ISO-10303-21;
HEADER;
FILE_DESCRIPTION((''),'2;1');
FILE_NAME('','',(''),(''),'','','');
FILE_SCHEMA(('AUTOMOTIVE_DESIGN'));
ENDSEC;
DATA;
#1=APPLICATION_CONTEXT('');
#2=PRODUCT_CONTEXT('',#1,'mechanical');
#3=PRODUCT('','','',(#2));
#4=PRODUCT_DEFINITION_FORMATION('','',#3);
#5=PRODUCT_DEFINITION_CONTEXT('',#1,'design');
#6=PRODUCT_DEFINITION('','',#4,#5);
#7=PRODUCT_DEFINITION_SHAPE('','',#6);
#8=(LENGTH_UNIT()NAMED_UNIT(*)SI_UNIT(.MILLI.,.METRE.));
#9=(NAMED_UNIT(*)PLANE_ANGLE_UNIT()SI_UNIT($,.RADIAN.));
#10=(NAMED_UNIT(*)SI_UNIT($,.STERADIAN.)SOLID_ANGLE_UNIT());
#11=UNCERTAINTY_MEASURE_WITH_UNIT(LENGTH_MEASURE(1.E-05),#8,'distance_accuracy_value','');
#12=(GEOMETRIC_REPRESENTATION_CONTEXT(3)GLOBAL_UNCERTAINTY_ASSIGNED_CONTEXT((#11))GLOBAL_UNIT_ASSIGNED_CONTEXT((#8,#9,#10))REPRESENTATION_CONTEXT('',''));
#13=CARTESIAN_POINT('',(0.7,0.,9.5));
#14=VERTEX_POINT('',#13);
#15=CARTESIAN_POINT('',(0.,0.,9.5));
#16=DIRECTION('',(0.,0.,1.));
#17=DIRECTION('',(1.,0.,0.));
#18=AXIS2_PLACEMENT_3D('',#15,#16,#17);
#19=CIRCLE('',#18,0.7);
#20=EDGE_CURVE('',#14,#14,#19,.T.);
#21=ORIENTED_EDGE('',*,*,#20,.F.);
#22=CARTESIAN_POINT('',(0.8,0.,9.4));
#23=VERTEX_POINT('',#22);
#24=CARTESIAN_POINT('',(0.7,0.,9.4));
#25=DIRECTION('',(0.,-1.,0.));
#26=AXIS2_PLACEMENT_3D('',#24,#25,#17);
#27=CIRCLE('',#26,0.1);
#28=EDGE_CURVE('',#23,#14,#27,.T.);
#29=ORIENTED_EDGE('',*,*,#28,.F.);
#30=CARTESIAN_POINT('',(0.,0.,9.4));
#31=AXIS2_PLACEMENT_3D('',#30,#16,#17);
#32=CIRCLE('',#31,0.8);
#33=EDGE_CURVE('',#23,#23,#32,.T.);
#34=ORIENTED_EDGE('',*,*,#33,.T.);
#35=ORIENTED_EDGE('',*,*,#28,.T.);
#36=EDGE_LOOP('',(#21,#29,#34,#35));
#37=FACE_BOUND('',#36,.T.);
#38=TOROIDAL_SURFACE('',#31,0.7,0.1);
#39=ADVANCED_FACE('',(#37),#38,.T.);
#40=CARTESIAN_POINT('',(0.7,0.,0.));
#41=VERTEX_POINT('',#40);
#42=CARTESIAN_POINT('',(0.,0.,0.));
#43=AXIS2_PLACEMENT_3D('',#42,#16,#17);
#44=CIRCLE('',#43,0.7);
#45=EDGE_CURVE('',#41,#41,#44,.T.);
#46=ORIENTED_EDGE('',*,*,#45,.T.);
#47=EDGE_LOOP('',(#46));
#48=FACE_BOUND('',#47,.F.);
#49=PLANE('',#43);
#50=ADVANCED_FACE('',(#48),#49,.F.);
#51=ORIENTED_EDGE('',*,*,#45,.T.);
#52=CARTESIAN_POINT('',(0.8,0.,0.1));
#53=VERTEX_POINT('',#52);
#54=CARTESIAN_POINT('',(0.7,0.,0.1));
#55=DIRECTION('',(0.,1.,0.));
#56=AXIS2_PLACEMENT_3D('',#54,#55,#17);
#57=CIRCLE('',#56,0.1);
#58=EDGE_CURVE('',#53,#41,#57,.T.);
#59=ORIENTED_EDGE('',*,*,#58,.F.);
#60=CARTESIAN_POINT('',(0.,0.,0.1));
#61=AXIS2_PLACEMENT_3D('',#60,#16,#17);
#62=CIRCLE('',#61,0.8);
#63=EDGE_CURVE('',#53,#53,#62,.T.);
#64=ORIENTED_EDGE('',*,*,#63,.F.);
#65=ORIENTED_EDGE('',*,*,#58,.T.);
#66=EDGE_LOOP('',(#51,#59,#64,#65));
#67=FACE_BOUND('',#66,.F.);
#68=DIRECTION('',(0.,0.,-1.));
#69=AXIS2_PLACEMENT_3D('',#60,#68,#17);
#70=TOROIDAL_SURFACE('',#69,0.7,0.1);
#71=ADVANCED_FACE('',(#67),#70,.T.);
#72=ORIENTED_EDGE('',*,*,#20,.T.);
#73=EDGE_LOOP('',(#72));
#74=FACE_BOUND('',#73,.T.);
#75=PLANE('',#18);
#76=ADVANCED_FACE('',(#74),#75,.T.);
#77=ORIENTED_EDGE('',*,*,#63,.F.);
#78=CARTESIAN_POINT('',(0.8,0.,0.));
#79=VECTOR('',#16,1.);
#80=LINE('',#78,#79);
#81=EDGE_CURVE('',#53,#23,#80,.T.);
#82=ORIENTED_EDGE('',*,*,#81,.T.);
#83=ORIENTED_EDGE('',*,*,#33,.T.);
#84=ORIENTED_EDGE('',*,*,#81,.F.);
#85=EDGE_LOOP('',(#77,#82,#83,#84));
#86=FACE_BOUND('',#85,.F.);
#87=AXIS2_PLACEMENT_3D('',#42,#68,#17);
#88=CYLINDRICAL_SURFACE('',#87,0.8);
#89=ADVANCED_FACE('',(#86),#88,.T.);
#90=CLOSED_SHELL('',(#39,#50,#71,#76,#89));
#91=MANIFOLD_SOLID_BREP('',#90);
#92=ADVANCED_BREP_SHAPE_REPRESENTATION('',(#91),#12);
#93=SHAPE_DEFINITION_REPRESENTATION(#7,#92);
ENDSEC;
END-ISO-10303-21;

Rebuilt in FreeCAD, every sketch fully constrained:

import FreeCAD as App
import Part
import Sketcher
from FreeCAD import Vector


def edges_at(feature, points):
    """Names of the edges that pass closest to the given points."""
    edges = feature.Shape.Edges
    near = lambda p: min(range(len(edges)), key=lambda i: edges[i].distToShape(Part.Vertex(*p))[0])
    return sorted({f"Edge{near(p) + 1}" for p in points})

doc = App.newDocument("Part")
params = doc.addObject("Spreadsheet::Sheet", "Params")
for row, (alias, value) in enumerate([
    ("sketch1_diameter", "1.6 mm"),
    ("pad1_length", "9.5 mm"),
    ("fillet_radius", "0.1 mm"),
], start=1):
    params.set(f"A{row}", alias)
    params.set(f"B{row}", "=" + value)
    params.setAlias(f"B{row}", alias)

body = doc.addObject("PartDesign::Body", "Body")

# Sketch on XY plane
sketch1 = body.newObject("Sketcher::SketchObject", "Sketch")
sketch1.AttachmentSupport = (doc.getObject("XY_Plane"), [""])
sketch1.MapMode = "FlatFace"
sketch1.addGeometry(Part.Circle(Vector(0, 0, 0), Vector(0, 0, 1), 0.8), False)
sketch1.addConstraint([
    Sketcher.Constraint("Coincident", 0, 3, -1, 1),
    Sketcher.Constraint("Diameter", 0, 1.6),
])
sketch1.setExpression("Constraints[1]", "Params.sketch1_diameter")
pad1 = body.newObject("PartDesign::Pad", "Pad")
pad1.Profile = sketch1
pad1.setExpression("Length", "Params.pad1_length")
doc.recompute()

fillet = body.newObject("PartDesign::Fillet", "Fillet")
fillet.Base = (pad1, edges_at(pad1, [(-0.8, 0, 0), (-0.8, 0, 9.5)]))
fillet.setExpression("Radius", "Params.fillet_radius")

doc.recompute()
